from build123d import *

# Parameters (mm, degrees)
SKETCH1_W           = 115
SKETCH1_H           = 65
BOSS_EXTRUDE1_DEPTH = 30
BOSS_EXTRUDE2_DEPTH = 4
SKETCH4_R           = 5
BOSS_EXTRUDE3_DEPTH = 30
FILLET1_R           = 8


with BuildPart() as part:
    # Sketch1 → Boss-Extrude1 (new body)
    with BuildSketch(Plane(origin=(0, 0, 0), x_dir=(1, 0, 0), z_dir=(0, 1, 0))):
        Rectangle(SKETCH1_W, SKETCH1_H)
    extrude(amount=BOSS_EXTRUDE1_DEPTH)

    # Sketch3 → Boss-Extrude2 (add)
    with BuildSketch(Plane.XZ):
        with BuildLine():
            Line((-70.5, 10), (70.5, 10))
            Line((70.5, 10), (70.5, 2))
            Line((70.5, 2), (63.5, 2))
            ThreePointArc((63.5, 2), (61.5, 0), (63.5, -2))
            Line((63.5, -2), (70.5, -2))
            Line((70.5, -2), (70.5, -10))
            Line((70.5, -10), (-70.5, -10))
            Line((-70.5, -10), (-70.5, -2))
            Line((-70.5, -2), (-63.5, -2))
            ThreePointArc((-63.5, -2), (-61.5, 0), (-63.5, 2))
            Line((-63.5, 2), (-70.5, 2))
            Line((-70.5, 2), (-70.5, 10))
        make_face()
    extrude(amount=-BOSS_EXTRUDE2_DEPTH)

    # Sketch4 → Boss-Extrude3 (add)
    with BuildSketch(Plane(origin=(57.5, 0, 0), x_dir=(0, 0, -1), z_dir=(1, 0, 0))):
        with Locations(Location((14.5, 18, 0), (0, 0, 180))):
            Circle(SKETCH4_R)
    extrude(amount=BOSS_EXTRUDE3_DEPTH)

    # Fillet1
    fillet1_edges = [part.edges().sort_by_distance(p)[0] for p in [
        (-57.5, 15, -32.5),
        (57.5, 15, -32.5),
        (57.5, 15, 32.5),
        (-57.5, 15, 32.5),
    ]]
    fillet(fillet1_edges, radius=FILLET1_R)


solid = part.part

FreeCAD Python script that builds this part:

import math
import FreeCAD as App
import Part
import Sketcher
from FreeCAD import Vector
Q = App.Units.Quantity


def edges_at(feature, points):
    """Names of the edges that pass closest to the given points."""
    edges = feature.Shape.Edges
    near = lambda p: min(range(len(edges)), key=lambda i: edges[i].distToShape(Part.Vertex(*p))[0])
    return sorted({f"Edge{near(p) + 1}" for p in points})

doc = App.newDocument("Part")
body = doc.addObject("PartDesign::Body", "Body")

sketch1 = body.newObject("Sketcher::SketchObject", "Sketch")
sketch1.AttachmentSupport = (doc.getObject("XZ_Plane"), [""])
sketch1.MapMode = "FlatFace"
sketch1.addGeometry(Part.LineSegment(Vector(-57.5, -32.5, 0), Vector(-57.5, 32.5, 0)), False)
sketch1.addGeometry(Part.LineSegment(Vector(-57.5, 32.5, 0), Vector(57.5, 32.5, 0)), False)
sketch1.addGeometry(Part.LineSegment(Vector(57.5, 32.5, 0), Vector(57.5, -32.5, 0)), False)
sketch1.addGeometry(Part.LineSegment(Vector(57.5, -32.5, 0), Vector(-57.5, -32.5, 0)), False)
sketch1.addConstraint(Sketcher.Constraint("Coincident", 0, 2, 1, 1))
sketch1.addConstraint(Sketcher.Constraint("Coincident", 1, 2, 2, 1))
sketch1.addConstraint(Sketcher.Constraint("Coincident", 2, 2, 3, 1))
sketch1.addConstraint(Sketcher.Constraint("Coincident", 3, 2, 0, 1))
sketch1.addConstraint(Sketcher.Constraint("Vertical", 0))
sketch1.addConstraint(Sketcher.Constraint("Horizontal", 1))
sketch1.addConstraint(Sketcher.Constraint("Vertical", 2))
sketch1.addConstraint(Sketcher.Constraint("Horizontal", 3))
sketch1.addConstraint(Sketcher.Constraint("Symmetric", 0, 2, 2, 2, -1, 1))
sketch1.addConstraint(Sketcher.Constraint("DistanceX", 1, 1, 1, 2, Q("115 mm")))
sketch1.addConstraint(Sketcher.Constraint("DistanceY", 0, 1, 0, 2, Q("65 mm")))
pad1 = body.newObject("PartDesign::Pad", "Pad")
pad1.Profile = sketch1
pad1.Length = 30
pad1.Reversed = True

sketch2 = body.newObject("Sketcher::SketchObject", "Sketch001")
sketch2.AttachmentSupport = (doc.getObject("XZ_Plane"), [""])
sketch2.MapMode = "FlatFace"
sketch2.addGeometry(Part.LineSegment(Vector(70.5, 10, 0), Vector(-70.5, 10, 0)), False)
sketch2.addGeometry(Part.LineSegment(Vector(-70.5, 10, 0), Vector(-70.5, 2, 0)), False)
sketch2.addGeometry(Part.LineSegment(Vector(-70.5, 2, 0), Vector(-63.5, 2, 0)), False)
sketch2.addGeometry(Part.ArcOfCircle(Part.Circle(Vector(-63.5, 0, 0), Vector(0, 0, 1), 2), math.radians(-90), math.radians(90)), False)
sketch2.addGeometry(Part.LineSegment(Vector(-63.5, -2, 0), Vector(-70.5, -2, 0)), False)
sketch2.addGeometry(Part.LineSegment(Vector(-70.5, -2, 0), Vector(-70.5, -10, 0)), False)
sketch2.addGeometry(Part.LineSegment(Vector(-70.5, -10, 0), Vector(70.5, -10, 0)), False)
sketch2.addGeometry(Part.LineSegment(Vector(70.5, -10, 0), Vector(70.5, -2, 0)), False)
sketch2.addGeometry(Part.LineSegment(Vector(70.5, -2, 0), Vector(63.5, -2, 0)), False)
sketch2.addGeometry(Part.ArcOfCircle(Part.Circle(Vector(63.5, 0, 0), Vector(0, 0, 1), 2), math.radians(90), math.radians(270)), False)
sketch2.addGeometry(Part.LineSegment(Vector(63.5, 2, 0), Vector(70.5, 2, 0)), False)
sketch2.addGeometry(Part.LineSegment(Vector(70.5, 2, 0), Vector(70.5, 10, 0)), False)
sketch2.addConstraint(Sketcher.Constraint("Coincident", 0, 2, 1, 1))
sketch2.addConstraint(Sketcher.Constraint("Coincident", 1, 2, 2, 1))
sketch2.addConstraint(Sketcher.Constraint("Tangent", 2, 2, 3, 2))
sketch2.addConstraint(Sketcher.Constraint("Tangent", 3, 1, 4, 1))
sketch2.addConstraint(Sketcher.Constraint("Coincident", 4, 2, 5, 1))
sketch2.addConstraint(Sketcher.Constraint("Coincident", 5, 2, 6, 1))
sketch2.addConstraint(Sketcher.Constraint("Coincident", 6, 2, 7, 1))
sketch2.addConstraint(Sketcher.Constraint("Coincident", 7, 2, 8, 1))
sketch2.addConstraint(Sketcher.Constraint("Tangent", 8, 2, 9, 2))
sketch2.addConstraint(Sketcher.Constraint("Tangent", 9, 1, 10, 1))
sketch2.addConstraint(Sketcher.Constraint("Coincident", 10, 2, 11, 1))
sketch2.addConstraint(Sketcher.Constraint("Coincident", 11, 2, 0, 1))
sketch2.addConstraint(Sketcher.Constraint("Horizontal", 0))
sketch2.addConstraint(Sketcher.Constraint("Vertical", 1))
sketch2.addConstraint(Sketcher.Constraint("Horizontal", 2))
sketch2.addConstraint(Sketcher.Constraint("Horizontal", 4))
sketch2.addConstraint(Sketcher.Constraint("Vertical", 5))
sketch2.addConstraint(Sketcher.Constraint("Horizontal", 6))
sketch2.addConstraint(Sketcher.Constraint("Vertical", 7))
sketch2.addConstraint(Sketcher.Constraint("Horizontal", 8))
sketch2.addConstraint(Sketcher.Constraint("Horizontal", 10))
sketch2.addConstraint(Sketcher.Constraint("Vertical", 11))
sketch2.addConstraint(Sketcher.Constraint("Equal", 3, 9))
sketch2.addConstraint(Sketcher.Constraint("Symmetric", 3, 3, 9, 3, -1, 1))
sketch2.addConstraint(Sketcher.Constraint("Symmetric", 0, 2, 6, 2, -1, 1))
sketch2.addConstraint(Sketcher.Constraint("Symmetric", 4, 2, 7, 2, -2))
sketch2.addConstraint(Sketcher.Constraint("Vertical", 7, 2, 10, 2))
sketch2.addConstraint(Sketcher.Constraint("Radius", 3, Q("2 mm")))
sketch2.addConstraint(Sketcher.Constraint("DistanceX", 0, 2, 0, 1, Q("141 mm")))
sketch2.addConstraint(Sketcher.Constraint("DistanceX", 2, 1, 2, 2, Q("7 mm")))
sketch2.addConstraint(Sketcher.Constraint("DistanceY", 1, 2, 1, 1, Q("8 mm")))
pad2 = body.newObject("PartDesign::Pad", "Pad001")
pad2.Profile = sketch2
pad2.Length = 4
pad2.Reversed = True

sketch3 = body.newObject("Sketcher::SketchObject", "Sketch002")
sketch3.AttachmentSupport = (doc.getObject("YZ_Plane"), [""])
sketch3.MapMode = "FlatFace"
sketch3.AttachmentOffset = App.Placement(Vector(0, 0, 57.5), App.Rotation())
sketch3.addGeometry(Part.Circle(Vector(18, -14.5, 0), Vector(0, 0, 1), 5), False)
sketch3.addConstraint(Sketcher.Constraint("Diameter", 0, Q("10 mm")))
sketch3.addConstraint(Sketcher.Constraint("DistanceX", -1, 1, 0, 3, Q("18 mm")))
sketch3.addConstraint(Sketcher.Constraint("DistanceY", 0, 3, -1, 1, Q("14.5 mm")))
pad3 = body.newObject("PartDesign::Pad", "Pad002")
pad3.Profile = sketch3
pad3.Length = 30
doc.recompute()

fillet = body.newObject("PartDesign::Fillet", "Fillet")
fillet.Base = (pad3, edges_at(pad3, [
    (-57.5, 15, -32.5),
    (57.5, 15, -32.5),
    (57.5, 15, 32.5),
    (-57.5, 15, 32.5),
]))
fillet.Radius = 8

doc.recompute()
